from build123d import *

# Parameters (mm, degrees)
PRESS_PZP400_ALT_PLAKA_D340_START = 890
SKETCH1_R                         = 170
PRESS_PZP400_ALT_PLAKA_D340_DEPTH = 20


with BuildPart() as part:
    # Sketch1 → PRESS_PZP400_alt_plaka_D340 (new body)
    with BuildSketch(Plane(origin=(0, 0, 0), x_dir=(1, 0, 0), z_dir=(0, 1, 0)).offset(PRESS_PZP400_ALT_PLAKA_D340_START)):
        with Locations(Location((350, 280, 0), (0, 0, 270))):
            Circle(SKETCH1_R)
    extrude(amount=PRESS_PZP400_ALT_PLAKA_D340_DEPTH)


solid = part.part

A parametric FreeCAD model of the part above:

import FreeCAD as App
import Part
import Sketcher
from FreeCAD import Vector

doc = App.newDocument("Part")
body = doc.addObject("PartDesign::Body", "Body")

# Sketch on XZ plane
sketch1 = body.newObject("Sketcher::SketchObject", "Sketch")
sketch1.AttachmentSupport = (doc.getObject("XZ_Plane"), [""])
sketch1.MapMode = "FlatFace"
sketch1.AttachmentOffset = App.Placement(Vector(0, 0, -890), App.Rotation())
sketch1.addGeometry(Part.Circle(Vector(350, -280, 0), Vector(0, 0, 1), 170), False)
sketch1.addConstraint([
    Sketcher.Constraint("Diameter", 0, 340.0),
    Sketcher.Constraint("DistanceX", -1, 1, 0, 3, 350.0),
    Sketcher.Constraint("DistanceY", 0, 3, -1, 1, 280.0),
])
pad1 = body.newObject("PartDesign::Pad", "Pad")
pad1.Profile = sketch1
pad1.Length = 20
pad1.Reversed = True

doc.recompute()
